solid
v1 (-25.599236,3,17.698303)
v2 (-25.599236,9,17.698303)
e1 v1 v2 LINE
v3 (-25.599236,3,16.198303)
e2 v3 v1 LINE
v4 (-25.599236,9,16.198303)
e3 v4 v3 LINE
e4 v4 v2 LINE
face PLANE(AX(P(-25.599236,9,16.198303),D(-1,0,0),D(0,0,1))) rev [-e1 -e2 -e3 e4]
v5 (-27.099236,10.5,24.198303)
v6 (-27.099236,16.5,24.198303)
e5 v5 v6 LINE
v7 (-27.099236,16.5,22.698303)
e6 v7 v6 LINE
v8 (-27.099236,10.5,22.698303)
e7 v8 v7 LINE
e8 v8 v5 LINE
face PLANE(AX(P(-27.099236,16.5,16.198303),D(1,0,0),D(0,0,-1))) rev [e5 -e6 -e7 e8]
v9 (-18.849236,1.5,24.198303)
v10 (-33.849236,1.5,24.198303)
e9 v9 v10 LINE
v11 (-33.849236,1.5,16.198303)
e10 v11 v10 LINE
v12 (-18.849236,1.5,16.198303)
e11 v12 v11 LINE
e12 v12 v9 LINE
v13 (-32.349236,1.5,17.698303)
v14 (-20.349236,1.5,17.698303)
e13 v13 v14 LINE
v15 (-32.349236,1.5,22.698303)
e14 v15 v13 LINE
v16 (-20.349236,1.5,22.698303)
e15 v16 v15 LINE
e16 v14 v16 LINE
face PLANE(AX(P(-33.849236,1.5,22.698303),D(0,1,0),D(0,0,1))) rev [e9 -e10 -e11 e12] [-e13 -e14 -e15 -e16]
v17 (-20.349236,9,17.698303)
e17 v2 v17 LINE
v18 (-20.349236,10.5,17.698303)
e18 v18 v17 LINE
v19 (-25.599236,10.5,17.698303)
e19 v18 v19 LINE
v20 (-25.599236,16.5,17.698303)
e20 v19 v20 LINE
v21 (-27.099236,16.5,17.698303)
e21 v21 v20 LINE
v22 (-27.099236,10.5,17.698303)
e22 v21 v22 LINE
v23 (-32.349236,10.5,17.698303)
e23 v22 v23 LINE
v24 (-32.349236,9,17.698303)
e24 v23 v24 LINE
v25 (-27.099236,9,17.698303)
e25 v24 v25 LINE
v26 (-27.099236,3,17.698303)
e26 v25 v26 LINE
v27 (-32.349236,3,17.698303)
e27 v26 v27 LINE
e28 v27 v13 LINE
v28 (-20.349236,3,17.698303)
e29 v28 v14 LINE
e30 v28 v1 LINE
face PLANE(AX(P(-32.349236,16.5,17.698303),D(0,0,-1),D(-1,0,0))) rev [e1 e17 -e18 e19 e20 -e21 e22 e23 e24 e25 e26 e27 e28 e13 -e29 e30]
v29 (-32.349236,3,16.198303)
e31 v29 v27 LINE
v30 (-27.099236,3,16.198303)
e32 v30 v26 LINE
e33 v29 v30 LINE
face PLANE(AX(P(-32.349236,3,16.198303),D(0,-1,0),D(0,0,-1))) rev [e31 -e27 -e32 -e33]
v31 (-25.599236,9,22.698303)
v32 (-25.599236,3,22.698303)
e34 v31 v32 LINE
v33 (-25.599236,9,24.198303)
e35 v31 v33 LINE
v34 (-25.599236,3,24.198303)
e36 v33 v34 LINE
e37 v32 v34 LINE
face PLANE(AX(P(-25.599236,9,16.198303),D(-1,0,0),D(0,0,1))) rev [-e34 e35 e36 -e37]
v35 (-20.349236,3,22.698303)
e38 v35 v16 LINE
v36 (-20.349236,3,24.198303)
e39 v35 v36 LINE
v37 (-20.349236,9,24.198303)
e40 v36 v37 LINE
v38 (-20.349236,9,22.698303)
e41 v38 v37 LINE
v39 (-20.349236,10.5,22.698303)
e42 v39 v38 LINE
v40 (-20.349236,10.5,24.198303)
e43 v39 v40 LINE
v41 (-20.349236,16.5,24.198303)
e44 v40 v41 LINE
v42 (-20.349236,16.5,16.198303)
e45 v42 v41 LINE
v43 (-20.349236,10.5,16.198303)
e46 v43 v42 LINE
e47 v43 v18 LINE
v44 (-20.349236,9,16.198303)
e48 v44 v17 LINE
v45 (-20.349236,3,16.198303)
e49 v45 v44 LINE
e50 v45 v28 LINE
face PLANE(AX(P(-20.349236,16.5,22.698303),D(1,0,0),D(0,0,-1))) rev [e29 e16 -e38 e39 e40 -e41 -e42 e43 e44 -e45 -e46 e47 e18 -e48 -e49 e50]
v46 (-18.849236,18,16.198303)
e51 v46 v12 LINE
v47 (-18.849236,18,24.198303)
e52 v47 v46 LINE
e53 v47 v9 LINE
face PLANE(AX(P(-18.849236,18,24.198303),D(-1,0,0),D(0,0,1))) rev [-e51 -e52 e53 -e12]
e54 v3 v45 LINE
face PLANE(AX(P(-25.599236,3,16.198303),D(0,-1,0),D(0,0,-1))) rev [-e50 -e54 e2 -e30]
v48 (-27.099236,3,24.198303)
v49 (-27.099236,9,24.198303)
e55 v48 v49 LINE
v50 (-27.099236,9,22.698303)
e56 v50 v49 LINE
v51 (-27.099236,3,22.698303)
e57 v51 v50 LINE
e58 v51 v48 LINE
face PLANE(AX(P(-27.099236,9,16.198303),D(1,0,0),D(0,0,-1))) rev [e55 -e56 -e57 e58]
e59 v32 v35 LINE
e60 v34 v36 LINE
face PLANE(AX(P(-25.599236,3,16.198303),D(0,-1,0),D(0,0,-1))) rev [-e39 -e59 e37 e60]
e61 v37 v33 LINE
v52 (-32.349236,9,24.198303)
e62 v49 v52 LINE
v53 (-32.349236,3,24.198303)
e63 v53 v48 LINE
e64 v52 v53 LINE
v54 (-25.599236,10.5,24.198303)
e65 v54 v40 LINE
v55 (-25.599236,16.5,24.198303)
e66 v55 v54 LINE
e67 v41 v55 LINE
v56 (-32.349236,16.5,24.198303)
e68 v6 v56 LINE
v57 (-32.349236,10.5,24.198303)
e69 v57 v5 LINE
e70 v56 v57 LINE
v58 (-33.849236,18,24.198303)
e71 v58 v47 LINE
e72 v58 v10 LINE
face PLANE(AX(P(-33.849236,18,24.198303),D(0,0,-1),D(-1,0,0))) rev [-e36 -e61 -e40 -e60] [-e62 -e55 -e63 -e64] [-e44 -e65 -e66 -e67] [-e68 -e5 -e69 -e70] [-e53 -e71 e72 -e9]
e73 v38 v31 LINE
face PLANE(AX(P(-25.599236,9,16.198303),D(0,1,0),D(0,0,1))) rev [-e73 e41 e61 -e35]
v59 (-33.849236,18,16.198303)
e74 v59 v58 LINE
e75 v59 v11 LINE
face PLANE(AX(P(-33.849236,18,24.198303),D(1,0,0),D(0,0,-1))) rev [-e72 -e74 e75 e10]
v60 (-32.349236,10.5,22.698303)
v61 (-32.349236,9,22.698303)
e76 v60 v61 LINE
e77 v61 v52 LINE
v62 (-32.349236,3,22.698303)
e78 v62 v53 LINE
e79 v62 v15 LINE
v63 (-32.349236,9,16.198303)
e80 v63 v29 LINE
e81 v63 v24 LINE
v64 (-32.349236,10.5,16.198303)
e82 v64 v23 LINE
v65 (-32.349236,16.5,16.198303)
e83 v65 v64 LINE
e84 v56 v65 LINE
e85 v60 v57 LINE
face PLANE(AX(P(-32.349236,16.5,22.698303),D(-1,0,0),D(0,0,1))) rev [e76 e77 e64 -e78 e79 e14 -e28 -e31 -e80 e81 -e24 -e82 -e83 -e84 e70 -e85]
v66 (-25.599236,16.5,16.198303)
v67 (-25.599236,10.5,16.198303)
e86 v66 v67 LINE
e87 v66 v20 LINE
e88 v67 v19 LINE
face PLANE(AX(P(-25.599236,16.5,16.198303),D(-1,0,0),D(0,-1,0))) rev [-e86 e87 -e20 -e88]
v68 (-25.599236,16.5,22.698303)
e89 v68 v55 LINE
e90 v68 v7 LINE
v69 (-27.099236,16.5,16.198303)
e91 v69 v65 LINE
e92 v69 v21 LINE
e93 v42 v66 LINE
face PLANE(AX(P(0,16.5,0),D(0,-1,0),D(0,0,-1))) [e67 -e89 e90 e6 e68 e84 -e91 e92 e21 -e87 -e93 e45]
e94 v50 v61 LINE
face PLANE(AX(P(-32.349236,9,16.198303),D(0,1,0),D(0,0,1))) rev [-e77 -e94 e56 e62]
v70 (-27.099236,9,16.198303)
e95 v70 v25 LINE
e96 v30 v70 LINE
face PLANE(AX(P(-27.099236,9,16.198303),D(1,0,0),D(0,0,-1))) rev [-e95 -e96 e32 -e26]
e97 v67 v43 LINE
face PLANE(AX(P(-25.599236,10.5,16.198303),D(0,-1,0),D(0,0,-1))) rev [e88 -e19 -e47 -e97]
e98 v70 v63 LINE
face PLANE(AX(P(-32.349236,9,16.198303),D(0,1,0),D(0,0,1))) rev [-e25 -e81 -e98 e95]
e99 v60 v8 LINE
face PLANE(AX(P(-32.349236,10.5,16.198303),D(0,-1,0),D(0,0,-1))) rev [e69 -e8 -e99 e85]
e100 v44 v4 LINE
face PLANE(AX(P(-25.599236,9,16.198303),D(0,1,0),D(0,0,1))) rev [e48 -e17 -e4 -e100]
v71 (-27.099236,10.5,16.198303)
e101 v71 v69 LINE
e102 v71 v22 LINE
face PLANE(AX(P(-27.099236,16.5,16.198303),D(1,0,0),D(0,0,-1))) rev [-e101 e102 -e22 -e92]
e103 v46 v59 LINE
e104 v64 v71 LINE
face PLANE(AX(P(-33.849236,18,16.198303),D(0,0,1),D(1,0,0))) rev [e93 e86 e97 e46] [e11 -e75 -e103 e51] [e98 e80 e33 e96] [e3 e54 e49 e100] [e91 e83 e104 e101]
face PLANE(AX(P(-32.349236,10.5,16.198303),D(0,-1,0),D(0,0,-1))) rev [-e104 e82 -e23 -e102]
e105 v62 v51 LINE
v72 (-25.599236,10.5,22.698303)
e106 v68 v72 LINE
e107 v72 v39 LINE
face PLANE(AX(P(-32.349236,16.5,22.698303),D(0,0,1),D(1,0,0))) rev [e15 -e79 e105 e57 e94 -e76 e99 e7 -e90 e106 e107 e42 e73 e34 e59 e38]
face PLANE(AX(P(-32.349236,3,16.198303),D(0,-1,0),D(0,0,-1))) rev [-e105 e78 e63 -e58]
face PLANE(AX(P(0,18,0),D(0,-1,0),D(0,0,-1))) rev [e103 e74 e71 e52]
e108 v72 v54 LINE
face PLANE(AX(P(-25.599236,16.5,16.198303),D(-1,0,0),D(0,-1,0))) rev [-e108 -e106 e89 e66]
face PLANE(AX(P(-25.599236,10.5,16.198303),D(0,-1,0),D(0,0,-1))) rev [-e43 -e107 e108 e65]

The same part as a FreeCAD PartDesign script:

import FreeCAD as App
import Part
import Sketcher

doc = App.newDocument("Part")
body = doc.addObject("PartDesign::Body", "Body")

sketch1 = doc.addObject("Sketcher::SketchObject", "Sketch")
body.addObject(sketch1)
sketch1.AttachmentSupport = (doc.XZ_Plane, [""])
sketch1.MapMode = "FlatFace"
sketch1.addGeometry([
    Part.LineSegment(App.Vector(-34, 16, 0), App.Vector(-34, 24, 0)),
    Part.LineSegment(App.Vector(-34, 24, 0), App.Vector(-19, 24, 0)),
    Part.LineSegment(App.Vector(-19, 24, 0), App.Vector(-19, 16, 0)),
    Part.LineSegment(App.Vector(-19, 16, 0), App.Vector(-34, 16, 0)),
], False)
sketch1.addConstraint([
    Sketcher.Constraint("Coincident", 0, 2, 1, 1),
    Sketcher.Constraint("Coincident", 1, 2, 2, 1),
    Sketcher.Constraint("Coincident", 2, 2, 3, 1),
    Sketcher.Constraint("Coincident", 3, 2, 0, 1),
    Sketcher.Constraint("Vertical", 0),
    Sketcher.Constraint("Horizontal", 1),
    Sketcher.Constraint("Vertical", 2),
    Sketcher.Constraint("Horizontal", 3),
    Sketcher.Constraint("DistanceX", 1, 1, 1, 2, 15.0),
    Sketcher.Constraint("DistanceY", 0, 1, 0, 2, 8.0),
    Sketcher.Constraint("DistanceX", 0, 2, -1, 1, 33.849236),
    Sketcher.Constraint("DistanceY", -1, 1, 0, 2, 24.198303),
])
pad1 = doc.addObject("PartDesign::Pad", "Pad")
body.addObject(pad1)
pad1.Profile = sketch1
pad1.Length = 18
pad1.Reversed = True

sketch2 = doc.addObject("Sketcher::SketchObject", "Sketch001")
body.addObject(sketch2)
sketch2.AttachmentSupport = (doc.XZ_Plane, [""])
sketch2.MapMode = "FlatFace"
sketch2.addGeometry([
    Part.LineSegment(App.Vector(-20, 18, 0), App.Vector(-20, 23, 0)),
    Part.LineSegment(App.Vector(-20, 23, 0), App.Vector(-32, 23, 0)),
    Part.LineSegment(App.Vector(-32, 23, 0), App.Vector(-32, 18, 0)),
    Part.LineSegment(App.Vector(-32, 18, 0), App.Vector(-20, 18, 0)),
], False)
sketch2.addConstraint([
    Sketcher.Constraint("Coincident", 0, 2, 1, 1),
    Sketcher.Constraint("Coincident", 1, 2, 2, 1),
    Sketcher.Constraint("Coincident", 2, 2, 3, 1),
    Sketcher.Constraint("Coincident", 3, 2, 0, 1),
    Sketcher.Constraint("Vertical", 0),
    Sketcher.Constraint("Horizontal", 1),
    Sketcher.Constraint("Vertical", 2),
    Sketcher.Constraint("Horizontal", 3),
    Sketcher.Constraint("DistanceX", 1, 2, 1, 1, 12.0),
    Sketcher.Constraint("DistanceY", 0, 1, 0, 2, 5.0),
    Sketcher.Constraint("DistanceX", 0, 2, -1, 1, 20.349236),
    Sketcher.Constraint("DistanceY", -1, 1, 0, 2, 22.698303),
])
pocket1 = doc.addObject("PartDesign::Pocket", "Pocket")
body.addObject(pocket1)
pocket1.Profile = sketch2
pocket1.Length = 16.5

sketch3 = doc.addObject("Sketcher::SketchObject", "Sketch002")
body.addObject(sketch3)
sketch3.AttachmentSupport = (doc.XY_Plane, [""])
sketch3.MapMode = "FlatFace"
sketch3.AttachmentOffset = App.Placement(App.Vector(0, 0, 24.198303), App.Rotation())
sketch3.addGeometry([
    Part.LineSegment(App.Vector(-32, 16, 0), App.Vector(-32, 10, 0)),
    Part.LineSegment(App.Vector(-32, 10, 0), App.Vector(-27, 10, 0)),
    Part.LineSegment(App.Vector(-27, 10, 0), App.Vector(-27, 16, 0)),
    Part.LineSegment(App.Vector(-27, 16, 0), App.Vector(-32, 16, 0)),
    Part.LineSegment(App.Vector(-26, 16, 0), App.Vector(-26, 10, 0)),
    Part.LineSegment(App.Vector(-26, 10, 0), App.Vector(-20, 10, 0)),
    Part.LineSegment(App.Vector(-20, 10, 0), App.Vector(-20, 16, 0)),
    Part.LineSegment(App.Vector(-20, 16, 0), App.Vector(-26, 16, 0)),
    Part.LineSegment(App.Vector(-26, 9, 0), App.Vector(-26, 3, 0)),
    Part.LineSegment(App.Vector(-26, 3, 0), App.Vector(-20, 3, 0)),
    Part.LineSegment(App.Vector(-20, 3, 0), App.Vector(-20, 9, 0)),
    Part.LineSegment(App.Vector(-20, 9, 0), App.Vector(-26, 9, 0)),
    Part.LineSegment(App.Vector(-32, 9, 0), App.Vector(-32, 3, 0)),
    Part.LineSegment(App.Vector(-32, 3, 0), App.Vector(-27, 3, 0)),
    Part.LineSegment(App.Vector(-27, 3, 0), App.Vector(-27, 9, 0)),
    Part.LineSegment(App.Vector(-27, 9, 0), App.Vector(-32, 9, 0)),
], False)
sketch3.addConstraint([
    Sketcher.Constraint("Coincident", 0, 2, 1, 1),
    Sketcher.Constraint("Coincident", 1, 2, 2, 1),
    Sketcher.Constraint("Coincident", 2, 2, 3, 1),
    Sketcher.Constraint("Coincident", 3, 2, 0, 1),
    Sketcher.Constraint("Coincident", 4, 2, 5, 1),
    Sketcher.Constraint("Coincident", 5, 2, 6, 1),
    Sketcher.Constraint("Coincident", 6, 2, 7, 1),
    Sketcher.Constraint("Coincident", 7, 2, 4, 1),
    Sketcher.Constraint("Coincident", 8, 2, 9, 1),
    Sketcher.Constraint("Coincident", 9, 2, 10, 1),
    Sketcher.Constraint("Coincident", 10, 2, 11, 1),
    Sketcher.Constraint("Coincident", 11, 2, 8, 1),
    Sketcher.Constraint("Coincident", 12, 2, 13, 1),
    Sketcher.Constraint("Coincident", 13, 2, 14, 1),
    Sketcher.Constraint("Coincident", 14, 2, 15, 1),
    Sketcher.Constraint("Coincident", 15, 2, 12, 1),
    Sketcher.Constraint("Vertical", 0),
    Sketcher.Constraint("Horizontal", 1),
    Sketcher.Constraint("Vertical", 2),
    Sketcher.Constraint("Horizontal", 3),
    Sketcher.Constraint("Vertical", 4),
    Sketcher.Constraint("Horizontal", 5),
    Sketcher.Constraint("Vertical", 6),
    Sketcher.Constraint("Horizontal", 7),
    Sketcher.Constraint("Vertical", 8),
    Sketcher.Constraint("Horizontal", 9),
    Sketcher.Constraint("Vertical", 10),
    Sketcher.Constraint("Horizontal", 11),
    Sketcher.Constraint("Vertical", 12),
    Sketcher.Constraint("Horizontal", 13),
    Sketcher.Constraint("Vertical", 14),
    Sketcher.Constraint("Horizontal", 15),
    Sketcher.Constraint("Horizontal", 1, 2, 4, 2),
    Sketcher.Constraint("Horizontal", 3, 2, 6, 2),
    Sketcher.Constraint("Horizontal", 9, 2, 12, 2),
    Sketcher.Constraint("Horizontal", 11, 2, 14, 2),
    Sketcher.Constraint("Vertical", 7, 2, 8, 2),
    Sketcher.Constraint("Vertical", 6, 2, 9, 2),
    Sketcher.Constraint("Vertical", 3, 2, 12, 2),
    Sketcher.Constraint("Vertical", 2, 2, 13, 2),
    Sketcher.Constraint("Equal", 3, 5),
    Sketcher.Constraint("Equal", 6, 8),
    Sketcher.Constraint("DistanceY", 0, 2, 0, 1, 6.0),
    Sketcher.Constraint("DistanceY", -1, 1, 8, 2, 3.0),
    Sketcher.Constraint("DistanceX", 0, 2, 5, 2, 12.0),
    Sketcher.Constraint("DistanceX", 1, 1, 1, 2, 5.25),
    Sketcher.Constraint("DistanceY", -1, 1, 0, 2, 10.5),
    Sketcher.Constraint("DistanceX", 0, 2, -1, 1, 32.349236),
])
pocket2 = doc.addObject("PartDesign::Pocket", "Pocket001")
body.addObject(pocket2)
pocket2.Profile = sketch3
pocket2.Length = 8

sketch4 = doc.addObject("Sketcher::SketchObject", "Sketch003")
body.addObject(sketch4)
sketch4.AttachmentSupport = (doc.YZ_Plane, [""])
sketch4.MapMode = "FlatFace"
sketch4.AttachmentOffset = App.Placement(App.Vector(0, 0, -18.849236), App.Rotation())
sketch4.addGeometry([
    Part.LineSegment(App.Vector(1.5, 22.7, 0), App.Vector(0, 22.7, 0)),
    Part.LineSegment(App.Vector(0, 22.7, 0), App.Vector(0, 17.7, 0)),
    Part.LineSegment(App.Vector(0, 17.7, 0), App.Vector(1.5, 17.7, 0)),
    Part.LineSegment(App.Vector(1.5, 17.7, 0), App.Vector(1.5, 22.7, 0)),
], False)
sketch4.addConstraint([
    Sketcher.Constraint("Coincident", 0, 2, 1, 1),
    Sketcher.Constraint("Coincident", 1, 2, 2, 1),
    Sketcher.Constraint("Coincident", 2, 2, 3, 1),
    Sketcher.Constraint("Coincident", 3, 2, 0, 1),
    Sketcher.Constraint("Horizontal", 0),
    Sketcher.Constraint("Vertical", 1),
    Sketcher.Constraint("Horizontal", 2),
    Sketcher.Constraint("Vertical", 3),
    Sketcher.Constraint("PointOnObject", 0, 2, -2),
    Sketcher.Constraint("DistanceY", 1, 2, 1, 1, 5.0),
    Sketcher.Constraint("DistanceX", 0, 2, 0, 1, 1.5),
    Sketcher.Constraint("DistanceY", -1, 1, 0, 2, 22.698303),
])
pocket3 = doc.addObject("PartDesign::Pocket", "Pocket002")
body.addObject(pocket3)
pocket3.Profile = sketch4
pocket3.Length = 15

sketch5 = doc.addObject("Sketcher::SketchObject", "Sketch004")
body.addObject(sketch5)
sketch5.AttachmentSupport = (doc.XY_Plane, [""])
sketch5.MapMode = "FlatFace"
sketch5.AttachmentOffset = App.Placement(App.Vector(0, 0, 24.198303), App.Rotation())
sketch5.addGeometry([
    Part.LineSegment(App.Vector(-32.3, 1.5, 0), App.Vector(-32.3, 0, 0)),
    Part.LineSegment(App.Vector(-32.3, 0, 0), App.Vector(-27.1, 0, 0)),
    Part.LineSegment(App.Vector(-27.1, 0, 0), App.Vector(-27.1, 1.5, 0)),
    Part.LineSegment(App.Vector(-27.1, 1.5, 0), App.Vector(-32.3, 1.5, 0)),
    Part.LineSegment(App.Vector(-25.6, 1.5, 0), App.Vector(-25.6, 0, 0)),
    Part.LineSegment(App.Vector(-25.6, 0, 0), App.Vector(-20.3, 0, 0)),
    Part.LineSegment(App.Vector(-20.3, 0, 0), App.Vector(-20.3, 1.5, 0)),
    Part.LineSegment(App.Vector(-20.3, 1.5, 0), App.Vector(-25.6, 1.5, 0)),
], False)
sketch5.addConstraint([
    Sketcher.Constraint("Coincident", 0, 2, 1, 1),
    Sketcher.Constraint("Coincident", 1, 2, 2, 1),
    Sketcher.Constraint("Coincident", 2, 2, 3, 1),
    Sketcher.Constraint("Coincident", 3, 2, 0, 1),
    Sketcher.Constraint("Coincident", 4, 2, 5, 1),
    Sketcher.Constraint("Coincident", 5, 2, 6, 1),
    Sketcher.Constraint("Coincident", 6, 2, 7, 1),
    Sketcher.Constraint("Coincident", 7, 2, 4, 1),
    Sketcher.Constraint("Vertical", 0),
    Sketcher.Constraint("Horizontal", 1),
    Sketcher.Constraint("Vertical", 2),
    Sketcher.Constraint("Horizontal", 3),
    Sketcher.Constraint("Vertical", 4),
    Sketcher.Constraint("Horizontal", 5),
    Sketcher.Constraint("Vertical", 6),
    Sketcher.Constraint("Horizontal", 7),
    Sketcher.Constraint("PointOnObject", 0, 2, -1),
    Sketcher.Constraint("PointOnObject", 4, 2, -1),
    Sketcher.Constraint("Horizontal", 3, 2, 6, 2),
    Sketcher.Constraint("Equal", 3, 5),
    Sketcher.Constraint("DistanceY", 0, 2, 0, 1, 1.5),
    Sketcher.Constraint("DistanceX", 0, 2, 5, 2, 12.0),
    Sketcher.Constraint("DistanceX", 1, 1, 1, 2, 5.25),
    Sketcher.Constraint("DistanceX", 0, 2, -1, 1, 32.349236),
])
pocket4 = doc.addObject("PartDesign::Pocket", "Pocket003")
body.addObject(pocket4)
pocket4.Profile = sketch5
pocket4.Length = 15

sketch6 = doc.addObject("Sketcher::SketchObject", "Sketch005")
body.addObject(sketch6)
sketch6.AttachmentSupport = (doc.XZ_Plane, [""])
sketch6.MapMode = "FlatFace"
sketch6.addGeometry([
    Part.LineSegment(App.Vector(-34, 24, 0), App.Vector(-34, 16, 0)),
    Part.LineSegment(App.Vector(-34, 16, 0), App.Vector(-19, 16, 0)),
    Part.LineSegment(App.Vector(-19, 16, 0), App.Vector(-19, 24, 0)),
    Part.LineSegment(App.Vector(-19, 24, 0), App.Vector(-34, 24, 0)),
], False)
sketch6.addConstraint([
    Sketcher.Constraint("Coincident", 0, 2, 1, 1),
    Sketcher.Constraint("Coincident", 1, 2, 2, 1),
    Sketcher.Constraint("Coincident", 2, 2, 3, 1),
    Sketcher.Constraint("Coincident", 3, 2, 0, 1),
    Sketcher.Constraint("Vertical", 0),
    Sketcher.Constraint("Horizontal", 1),
    Sketcher.Constraint("Vertical", 2),
    Sketcher.Constraint("Horizontal", 3),
    Sketcher.Constraint("DistanceX", 1, 1, 1, 2, 15.0),
    Sketcher.Constraint("DistanceY", 0, 2, 0, 1, 8.0),
    Sketcher.Constraint("DistanceX", 0, 2, -1, 1, 33.849236),
    Sketcher.Constraint("DistanceY", -1, 1, 0, 2, 16.198303),
])
pocket5 = doc.addObject("PartDesign::Pocket", "Pocket004")
body.addObject(pocket5)
pocket5.Profile = sketch6
pocket5.Length = 1.5

doc.recompute()
